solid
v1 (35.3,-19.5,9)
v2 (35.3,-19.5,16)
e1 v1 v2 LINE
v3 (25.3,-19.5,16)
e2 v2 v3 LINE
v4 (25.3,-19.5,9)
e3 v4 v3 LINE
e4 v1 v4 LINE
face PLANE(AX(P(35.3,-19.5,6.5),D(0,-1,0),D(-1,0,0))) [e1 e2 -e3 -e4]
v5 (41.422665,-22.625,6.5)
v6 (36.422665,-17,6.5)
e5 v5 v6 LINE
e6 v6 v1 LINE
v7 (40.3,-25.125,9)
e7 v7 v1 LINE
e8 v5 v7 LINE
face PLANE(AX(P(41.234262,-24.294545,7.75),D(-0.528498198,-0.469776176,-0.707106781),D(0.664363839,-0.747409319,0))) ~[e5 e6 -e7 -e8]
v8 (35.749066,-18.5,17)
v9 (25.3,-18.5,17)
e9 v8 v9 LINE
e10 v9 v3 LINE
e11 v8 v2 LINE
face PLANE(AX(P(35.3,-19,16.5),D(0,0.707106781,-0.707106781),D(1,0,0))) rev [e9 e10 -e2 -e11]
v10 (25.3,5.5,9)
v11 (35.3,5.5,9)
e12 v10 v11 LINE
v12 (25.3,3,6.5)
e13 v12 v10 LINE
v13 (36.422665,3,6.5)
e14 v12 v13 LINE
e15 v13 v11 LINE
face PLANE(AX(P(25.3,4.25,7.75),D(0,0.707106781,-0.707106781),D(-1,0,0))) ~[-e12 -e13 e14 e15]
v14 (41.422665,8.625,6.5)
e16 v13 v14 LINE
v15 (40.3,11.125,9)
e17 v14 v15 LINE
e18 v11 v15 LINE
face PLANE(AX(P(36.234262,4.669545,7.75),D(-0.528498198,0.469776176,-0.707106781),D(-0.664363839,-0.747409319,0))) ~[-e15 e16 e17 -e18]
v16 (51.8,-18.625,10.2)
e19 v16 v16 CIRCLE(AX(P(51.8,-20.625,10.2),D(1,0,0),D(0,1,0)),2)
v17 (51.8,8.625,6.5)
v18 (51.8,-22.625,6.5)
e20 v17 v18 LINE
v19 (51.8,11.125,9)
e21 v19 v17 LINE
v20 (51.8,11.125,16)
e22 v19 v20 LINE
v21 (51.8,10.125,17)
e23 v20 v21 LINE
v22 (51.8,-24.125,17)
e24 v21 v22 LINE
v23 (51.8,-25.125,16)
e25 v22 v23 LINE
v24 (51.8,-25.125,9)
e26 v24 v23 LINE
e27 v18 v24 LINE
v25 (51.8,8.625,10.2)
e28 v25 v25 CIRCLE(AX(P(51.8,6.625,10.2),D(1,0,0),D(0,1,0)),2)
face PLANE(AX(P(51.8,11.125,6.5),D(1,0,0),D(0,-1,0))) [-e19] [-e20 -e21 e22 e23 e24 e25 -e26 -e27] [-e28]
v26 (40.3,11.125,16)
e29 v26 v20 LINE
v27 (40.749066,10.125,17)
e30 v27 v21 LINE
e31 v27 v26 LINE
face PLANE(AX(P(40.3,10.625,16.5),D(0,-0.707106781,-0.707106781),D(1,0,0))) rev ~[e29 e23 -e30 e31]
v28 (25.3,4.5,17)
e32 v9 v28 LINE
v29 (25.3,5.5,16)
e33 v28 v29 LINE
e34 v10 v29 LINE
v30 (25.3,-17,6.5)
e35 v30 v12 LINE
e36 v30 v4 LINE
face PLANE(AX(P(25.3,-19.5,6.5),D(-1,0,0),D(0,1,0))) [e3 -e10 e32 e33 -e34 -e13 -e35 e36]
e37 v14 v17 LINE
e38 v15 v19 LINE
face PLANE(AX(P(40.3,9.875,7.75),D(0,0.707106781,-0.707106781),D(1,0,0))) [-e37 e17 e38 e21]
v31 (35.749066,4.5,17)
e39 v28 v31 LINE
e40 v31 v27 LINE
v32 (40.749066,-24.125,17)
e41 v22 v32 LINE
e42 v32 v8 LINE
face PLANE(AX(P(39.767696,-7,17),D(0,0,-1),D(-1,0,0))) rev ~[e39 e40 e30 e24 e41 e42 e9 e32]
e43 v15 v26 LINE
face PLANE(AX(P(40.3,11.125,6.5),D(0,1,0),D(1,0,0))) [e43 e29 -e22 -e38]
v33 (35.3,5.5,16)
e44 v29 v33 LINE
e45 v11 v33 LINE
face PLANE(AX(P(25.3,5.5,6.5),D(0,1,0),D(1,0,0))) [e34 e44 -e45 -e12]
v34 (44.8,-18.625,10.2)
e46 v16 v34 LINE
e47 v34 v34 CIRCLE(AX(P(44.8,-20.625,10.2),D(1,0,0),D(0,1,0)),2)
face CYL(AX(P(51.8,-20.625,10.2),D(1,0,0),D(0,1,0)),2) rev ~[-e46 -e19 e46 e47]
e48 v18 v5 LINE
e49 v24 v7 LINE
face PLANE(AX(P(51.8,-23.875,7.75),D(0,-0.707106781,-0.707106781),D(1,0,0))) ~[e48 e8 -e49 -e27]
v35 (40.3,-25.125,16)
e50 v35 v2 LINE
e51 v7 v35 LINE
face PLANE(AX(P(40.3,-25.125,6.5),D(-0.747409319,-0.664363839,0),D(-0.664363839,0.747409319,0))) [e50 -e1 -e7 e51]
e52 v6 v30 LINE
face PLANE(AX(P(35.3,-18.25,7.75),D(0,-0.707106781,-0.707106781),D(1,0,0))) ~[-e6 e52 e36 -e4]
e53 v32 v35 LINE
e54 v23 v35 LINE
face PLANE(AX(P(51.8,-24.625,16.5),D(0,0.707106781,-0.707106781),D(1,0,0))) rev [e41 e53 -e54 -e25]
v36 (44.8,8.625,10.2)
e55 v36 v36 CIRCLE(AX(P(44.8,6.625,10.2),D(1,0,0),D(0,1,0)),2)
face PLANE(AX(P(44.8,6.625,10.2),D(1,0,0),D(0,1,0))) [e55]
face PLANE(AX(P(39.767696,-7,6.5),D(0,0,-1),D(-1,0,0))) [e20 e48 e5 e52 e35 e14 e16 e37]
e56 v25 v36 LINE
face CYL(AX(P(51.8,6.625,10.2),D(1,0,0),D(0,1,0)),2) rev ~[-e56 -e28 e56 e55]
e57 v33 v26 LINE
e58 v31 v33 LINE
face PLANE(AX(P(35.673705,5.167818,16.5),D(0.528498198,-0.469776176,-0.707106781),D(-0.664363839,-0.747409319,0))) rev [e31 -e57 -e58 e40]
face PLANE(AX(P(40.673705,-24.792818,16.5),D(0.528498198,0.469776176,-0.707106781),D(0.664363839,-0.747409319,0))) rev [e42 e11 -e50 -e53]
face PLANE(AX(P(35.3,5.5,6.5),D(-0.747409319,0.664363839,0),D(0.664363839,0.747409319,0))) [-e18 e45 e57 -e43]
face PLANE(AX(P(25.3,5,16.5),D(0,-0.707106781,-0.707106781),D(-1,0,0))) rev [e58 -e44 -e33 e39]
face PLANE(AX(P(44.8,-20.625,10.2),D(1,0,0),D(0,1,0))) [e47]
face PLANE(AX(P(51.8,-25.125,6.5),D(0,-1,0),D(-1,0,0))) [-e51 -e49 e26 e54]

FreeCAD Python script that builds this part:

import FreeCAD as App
import Part
import Sketcher
from FreeCAD import Vector
Q = App.Units.Quantity


def edges_at(feature, points):
    """Names of the edges that pass closest to the given points."""
    edges = feature.Shape.Edges
    near = lambda p: min(range(len(edges)), key=lambda i: edges[i].distToShape(Part.Vertex(*p))[0])
    return sorted({f"Edge{near(p) + 1}" for p in points})

doc = App.newDocument("Part")
body = doc.addObject("PartDesign::Body", "Body")

# Sketch on XY plane
sketch1 = doc.addObject("Sketcher::SketchObject", "Sketch")
body.addObject(sketch1)
sketch1.AttachmentSupport = (doc.XY_Plane, [""])
sketch1.MapMode = "FlatFace"
sketch1.addGeometry([
    Part.LineSegment(Vector(26, -18, 0), Vector(26, 18, 0)),  # 0
    Part.LineSegment(Vector(26, 18, 0), Vector(15, 18, 0)),  # 1
    Part.LineSegment(Vector(15, 18, 0), Vector(10, 12, 0)),  # 2
    Part.LineSegment(Vector(10, 12, 0), Vector(0, 12, 0)),  # 3
    Part.LineSegment(Vector(0, 12, 0), Vector(0, -12, 0)),  # 4
    Part.LineSegment(Vector(0, -12, 0), Vector(10, -12, 0)),  # 5
    Part.LineSegment(Vector(10, -12, 0), Vector(15, -18, 0)),  # 6
    Part.LineSegment(Vector(15, -18, 0), Vector(26, -18, 0)),  # 7
], False)
sketch1.addConstraint([
    Sketcher.Constraint("Coincident", 0, 2, 1, 1),
    Sketcher.Constraint("Coincident", 1, 2, 2, 1),
    Sketcher.Constraint("Coincident", 2, 2, 3, 1),
    Sketcher.Constraint("Coincident", 3, 2, 4, 1),
    Sketcher.Constraint("Coincident", 4, 2, 5, 1),
    Sketcher.Constraint("Coincident", 5, 2, 6, 1),
    Sketcher.Constraint("Coincident", 6, 2, 7, 1),
    Sketcher.Constraint("Coincident", 7, 2, 0, 1),
    Sketcher.Constraint("Vertical", 0),
    Sketcher.Constraint("Horizontal", 1),
    Sketcher.Constraint("Horizontal", 3),
    Sketcher.Constraint("Vertical", 4),
    Sketcher.Constraint("Horizontal", 5),
    Sketcher.Constraint("Horizontal", 7),
    Sketcher.Constraint("Symmetric", 3, 2, 4, 2, -1, 1),
    Sketcher.Constraint("Symmetric", 1, 2, 6, 2, -1),
    Sketcher.Constraint("Vertical", 2, 2, 5, 2),
    Sketcher.Constraint("DistanceX", 3, 2, 3, 1, Q("10 mm")),
    Sketcher.Constraint("DistanceY", 4, 2, 4, 1, Q("25 mm")),
    Sketcher.Constraint("DistanceX", 1, 2, 1, 1, Q("11.5 mm")),
    Sketcher.Constraint("DistanceX", -1, 1, 1, 2, Q("15 mm")),
    Sketcher.Constraint("DistanceY", 0, 1, 0, 2, Q("36.25 mm")),
])
pad1 = doc.addObject("PartDesign::Pad", "Pad")
body.addObject(pad1)
pad1.Profile = sketch1
pad1.Length = 10.5

# Sketch on YZ plane
sketch2 = doc.addObject("Sketcher::SketchObject", "Sketch001")
body.addObject(sketch2)
sketch2.AttachmentSupport = (doc.YZ_Plane, [""])
sketch2.MapMode = "FlatFace"
sketch2.AttachmentOffset = App.Placement(Vector(0, 0, 26.5), App.Rotation())
sketch2.addGeometry([
    Part.Circle(Vector(-13.6, 3.7, 0), Vector(0, 0, 1), 2),
    Part.Circle(Vector(13.6, 3.7, 0), Vector(0, 0, 1), 2),
], False)
sketch2.addConstraint([
    Sketcher.Constraint("Equal", 0, 1),
    Sketcher.Constraint("Symmetric", 0, 3, 1, 3, -2),
    Sketcher.Constraint("Diameter", 0, Q("4 mm")),
    Sketcher.Constraint("DistanceY", -1, 1, 0, 3, Q("3.7 mm")),
    Sketcher.Constraint("DistanceX", 0, 3, 1, 3, Q("27.25 mm")),
])
pocket1 = doc.addObject("PartDesign::Pocket", "Pocket")
body.addObject(pocket1)
pocket1.Profile = sketch2
pocket1.Length = 7
doc.recompute()

chamfer = doc.addObject("PartDesign::Chamfer", "Chamfer")
body.addObject(chamfer)
chamfer.Base = (pocket1, edges_at(pocket1, [
    (20.75, -18.125, 10.5),
    (12.5, -15.312, 10.5),
    (5, -12.5, 10.5),
    (5, 12.5, 10.5),
    (12.5, 15.312, 10.5),
    (20.75, 18.125, 10.5),
]))
chamfer.Size = 1
doc.recompute()

chamfer2 = doc.addObject("PartDesign::Chamfer", "Chamfer001")
body.addObject(chamfer2)
chamfer2.Base = (chamfer, edges_at(chamfer, [
    (5, -12.5, 0),
    (12.5, -15.312, 0),
    (20.75, -18.125, 0),
    (5, 12.5, 0),
    (12.5, 15.312, 0),
    (20.75, 18.125, 0),
]))
chamfer2.Size = 2.5
body2 = doc.addObject("PartDesign::Body", "Body001")
doc.recompute()

body.Placement = App.Placement(Vector(25.3, -7, 6.5), App.Rotation(Vector(0, 0, 1), 0))
boolean = doc.addObject("PartDesign::Boolean", "Boolean")
body2.addObject(boolean)
boolean.Type = "Fuse"
boolean.addObjects([body])

doc.recompute()
